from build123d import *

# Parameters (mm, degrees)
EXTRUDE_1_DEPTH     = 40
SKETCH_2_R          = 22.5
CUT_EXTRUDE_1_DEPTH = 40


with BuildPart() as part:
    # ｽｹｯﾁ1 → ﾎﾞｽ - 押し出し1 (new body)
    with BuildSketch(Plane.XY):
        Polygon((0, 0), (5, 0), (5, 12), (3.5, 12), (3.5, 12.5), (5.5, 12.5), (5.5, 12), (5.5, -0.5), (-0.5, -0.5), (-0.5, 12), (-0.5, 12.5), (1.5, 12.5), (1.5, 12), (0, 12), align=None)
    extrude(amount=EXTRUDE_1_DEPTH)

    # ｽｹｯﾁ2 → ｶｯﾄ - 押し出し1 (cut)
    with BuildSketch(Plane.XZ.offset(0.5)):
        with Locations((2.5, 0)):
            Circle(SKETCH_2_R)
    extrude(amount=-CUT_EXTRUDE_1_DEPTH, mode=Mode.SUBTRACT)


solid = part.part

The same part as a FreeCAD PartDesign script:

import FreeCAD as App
import Part
import Sketcher

doc = App.newDocument("Part")
body = doc.addObject("PartDesign::Body", "Body")

# Sketch on XY plane
sketch1 = body.newObject("Sketcher::SketchObject", "Sketch")
sketch1.AttachmentSupport = (doc.getObject("XY_Plane"), [""])
sketch1.MapMode = "FlatFace"
sketch1.addGeometry([
    Part.LineSegment(App.Vector(5, 0, 0), App.Vector(0, 0, 0)),  # 0
    Part.LineSegment(App.Vector(0, 0, 0), App.Vector(0, 12, 0)),  # 1
    Part.LineSegment(App.Vector(0, 12, 0), App.Vector(1.5, 12, 0)),  # 2
    Part.LineSegment(App.Vector(1.5, 12, 0), App.Vector(1.5, 12.5, 0)),  # 3
    Part.LineSegment(App.Vector(1.5, 12.5, 0), App.Vector(-0.5, 12.5, 0)),  # 4
    Part.LineSegment(App.Vector(-0.5, 12.5, 0), App.Vector(-0.5, -0.5, 0)),  # 5
    Part.LineSegment(App.Vector(-0.5, -0.5, 0), App.Vector(5.5, -0.5, 0)),  # 6
    Part.LineSegment(App.Vector(5.5, -0.5, 0), App.Vector(5.5, 12.5, 0)),  # 7
    Part.LineSegment(App.Vector(5.5, 12.5, 0), App.Vector(3.5, 12.5, 0)),  # 8
    Part.LineSegment(App.Vector(3.5, 12.5, 0), App.Vector(3.5, 12, 0)),  # 9
    Part.LineSegment(App.Vector(3.5, 12, 0), App.Vector(5, 12, 0)),  # 10
    Part.LineSegment(App.Vector(5, 12, 0), App.Vector(5, 0, 0)),  # 11
], False)
sketch1.addConstraint([
    Sketcher.Constraint("Coincident", 0, 2, 1, 1),
    Sketcher.Constraint("Coincident", 1, 2, 2, 1),
    Sketcher.Constraint("Coincident", 2, 2, 3, 1),
    Sketcher.Constraint("Coincident", 3, 2, 4, 1),
    Sketcher.Constraint("Coincident", 4, 2, 5, 1),
    Sketcher.Constraint("Coincident", 5, 2, 6, 1),
    Sketcher.Constraint("Coincident", 6, 2, 7, 1),
    Sketcher.Constraint("Coincident", 7, 2, 8, 1),
    Sketcher.Constraint("Coincident", 8, 2, 9, 1),
    Sketcher.Constraint("Coincident", 9, 2, 10, 1),
    Sketcher.Constraint("Coincident", 10, 2, 11, 1),
    Sketcher.Constraint("Coincident", 11, 2, 0, 1),
    Sketcher.Constraint("Horizontal", 0),
    Sketcher.Constraint("Vertical", 1),
    Sketcher.Constraint("Horizontal", 2),
    Sketcher.Constraint("Vertical", 3),
    Sketcher.Constraint("Horizontal", 4),
    Sketcher.Constraint("Vertical", 5),
    Sketcher.Constraint("Horizontal", 6),
    Sketcher.Constraint("Vertical", 7),
    Sketcher.Constraint("Horizontal", 8),
    Sketcher.Constraint("Vertical", 9),
    Sketcher.Constraint("Horizontal", 10),
    Sketcher.Constraint("Vertical", 11),
    Sketcher.Constraint("Coincident", 0, 2, -1, 1),
    Sketcher.Constraint("Horizontal", 4, 2, 7, 2),
    Sketcher.Constraint("Horizontal", 2, 2, 9, 2),
    Sketcher.Constraint("Equal", 4, 8),
    Sketcher.Constraint("Equal", 2, 10),
    Sketcher.Constraint("DistanceX", 0, 2, 0, 1, 5.0),
    Sketcher.Constraint("DistanceX", 4, 2, 4, 1, 2.0),
    Sketcher.Constraint("DistanceX", 6, 1, 6, 2, 6.0),
    Sketcher.Constraint("DistanceY", 1, 1, 1, 2, 12.0),
    Sketcher.Constraint("DistanceY", 5, 2, 5, 1, 13.0),
    Sketcher.Constraint("DistanceY", 3, 1, 3, 2, 0.5),
])
pad1 = body.newObject("PartDesign::Pad", "Pad")
pad1.Profile = sketch1
pad1.Length = 40

# Sketch on XZ plane
sketch2 = body.newObject("Sketcher::SketchObject", "Sketch001")
sketch2.AttachmentSupport = (doc.getObject("XZ_Plane"), [""])
sketch2.MapMode = "FlatFace"
sketch2.AttachmentOffset = App.Placement(App.Vector(0, 0, 0.5), App.Rotation())
sketch2.addGeometry(Part.Circle(App.Vector(2, 0, 0), App.Vector(0, 0, 1), 22), False)
sketch2.addConstraint([
    Sketcher.Constraint("PointOnObject", 0, 3, -1),
    Sketcher.Constraint("Diameter", 0, 45.0),
    Sketcher.Constraint("DistanceX", -1, 1, 0, 3, 2.5),
])
pocket1 = body.newObject("PartDesign::Pocket", "Pocket")
pocket1.Profile = sketch2
pocket1.Length = 40

doc.recompute()
